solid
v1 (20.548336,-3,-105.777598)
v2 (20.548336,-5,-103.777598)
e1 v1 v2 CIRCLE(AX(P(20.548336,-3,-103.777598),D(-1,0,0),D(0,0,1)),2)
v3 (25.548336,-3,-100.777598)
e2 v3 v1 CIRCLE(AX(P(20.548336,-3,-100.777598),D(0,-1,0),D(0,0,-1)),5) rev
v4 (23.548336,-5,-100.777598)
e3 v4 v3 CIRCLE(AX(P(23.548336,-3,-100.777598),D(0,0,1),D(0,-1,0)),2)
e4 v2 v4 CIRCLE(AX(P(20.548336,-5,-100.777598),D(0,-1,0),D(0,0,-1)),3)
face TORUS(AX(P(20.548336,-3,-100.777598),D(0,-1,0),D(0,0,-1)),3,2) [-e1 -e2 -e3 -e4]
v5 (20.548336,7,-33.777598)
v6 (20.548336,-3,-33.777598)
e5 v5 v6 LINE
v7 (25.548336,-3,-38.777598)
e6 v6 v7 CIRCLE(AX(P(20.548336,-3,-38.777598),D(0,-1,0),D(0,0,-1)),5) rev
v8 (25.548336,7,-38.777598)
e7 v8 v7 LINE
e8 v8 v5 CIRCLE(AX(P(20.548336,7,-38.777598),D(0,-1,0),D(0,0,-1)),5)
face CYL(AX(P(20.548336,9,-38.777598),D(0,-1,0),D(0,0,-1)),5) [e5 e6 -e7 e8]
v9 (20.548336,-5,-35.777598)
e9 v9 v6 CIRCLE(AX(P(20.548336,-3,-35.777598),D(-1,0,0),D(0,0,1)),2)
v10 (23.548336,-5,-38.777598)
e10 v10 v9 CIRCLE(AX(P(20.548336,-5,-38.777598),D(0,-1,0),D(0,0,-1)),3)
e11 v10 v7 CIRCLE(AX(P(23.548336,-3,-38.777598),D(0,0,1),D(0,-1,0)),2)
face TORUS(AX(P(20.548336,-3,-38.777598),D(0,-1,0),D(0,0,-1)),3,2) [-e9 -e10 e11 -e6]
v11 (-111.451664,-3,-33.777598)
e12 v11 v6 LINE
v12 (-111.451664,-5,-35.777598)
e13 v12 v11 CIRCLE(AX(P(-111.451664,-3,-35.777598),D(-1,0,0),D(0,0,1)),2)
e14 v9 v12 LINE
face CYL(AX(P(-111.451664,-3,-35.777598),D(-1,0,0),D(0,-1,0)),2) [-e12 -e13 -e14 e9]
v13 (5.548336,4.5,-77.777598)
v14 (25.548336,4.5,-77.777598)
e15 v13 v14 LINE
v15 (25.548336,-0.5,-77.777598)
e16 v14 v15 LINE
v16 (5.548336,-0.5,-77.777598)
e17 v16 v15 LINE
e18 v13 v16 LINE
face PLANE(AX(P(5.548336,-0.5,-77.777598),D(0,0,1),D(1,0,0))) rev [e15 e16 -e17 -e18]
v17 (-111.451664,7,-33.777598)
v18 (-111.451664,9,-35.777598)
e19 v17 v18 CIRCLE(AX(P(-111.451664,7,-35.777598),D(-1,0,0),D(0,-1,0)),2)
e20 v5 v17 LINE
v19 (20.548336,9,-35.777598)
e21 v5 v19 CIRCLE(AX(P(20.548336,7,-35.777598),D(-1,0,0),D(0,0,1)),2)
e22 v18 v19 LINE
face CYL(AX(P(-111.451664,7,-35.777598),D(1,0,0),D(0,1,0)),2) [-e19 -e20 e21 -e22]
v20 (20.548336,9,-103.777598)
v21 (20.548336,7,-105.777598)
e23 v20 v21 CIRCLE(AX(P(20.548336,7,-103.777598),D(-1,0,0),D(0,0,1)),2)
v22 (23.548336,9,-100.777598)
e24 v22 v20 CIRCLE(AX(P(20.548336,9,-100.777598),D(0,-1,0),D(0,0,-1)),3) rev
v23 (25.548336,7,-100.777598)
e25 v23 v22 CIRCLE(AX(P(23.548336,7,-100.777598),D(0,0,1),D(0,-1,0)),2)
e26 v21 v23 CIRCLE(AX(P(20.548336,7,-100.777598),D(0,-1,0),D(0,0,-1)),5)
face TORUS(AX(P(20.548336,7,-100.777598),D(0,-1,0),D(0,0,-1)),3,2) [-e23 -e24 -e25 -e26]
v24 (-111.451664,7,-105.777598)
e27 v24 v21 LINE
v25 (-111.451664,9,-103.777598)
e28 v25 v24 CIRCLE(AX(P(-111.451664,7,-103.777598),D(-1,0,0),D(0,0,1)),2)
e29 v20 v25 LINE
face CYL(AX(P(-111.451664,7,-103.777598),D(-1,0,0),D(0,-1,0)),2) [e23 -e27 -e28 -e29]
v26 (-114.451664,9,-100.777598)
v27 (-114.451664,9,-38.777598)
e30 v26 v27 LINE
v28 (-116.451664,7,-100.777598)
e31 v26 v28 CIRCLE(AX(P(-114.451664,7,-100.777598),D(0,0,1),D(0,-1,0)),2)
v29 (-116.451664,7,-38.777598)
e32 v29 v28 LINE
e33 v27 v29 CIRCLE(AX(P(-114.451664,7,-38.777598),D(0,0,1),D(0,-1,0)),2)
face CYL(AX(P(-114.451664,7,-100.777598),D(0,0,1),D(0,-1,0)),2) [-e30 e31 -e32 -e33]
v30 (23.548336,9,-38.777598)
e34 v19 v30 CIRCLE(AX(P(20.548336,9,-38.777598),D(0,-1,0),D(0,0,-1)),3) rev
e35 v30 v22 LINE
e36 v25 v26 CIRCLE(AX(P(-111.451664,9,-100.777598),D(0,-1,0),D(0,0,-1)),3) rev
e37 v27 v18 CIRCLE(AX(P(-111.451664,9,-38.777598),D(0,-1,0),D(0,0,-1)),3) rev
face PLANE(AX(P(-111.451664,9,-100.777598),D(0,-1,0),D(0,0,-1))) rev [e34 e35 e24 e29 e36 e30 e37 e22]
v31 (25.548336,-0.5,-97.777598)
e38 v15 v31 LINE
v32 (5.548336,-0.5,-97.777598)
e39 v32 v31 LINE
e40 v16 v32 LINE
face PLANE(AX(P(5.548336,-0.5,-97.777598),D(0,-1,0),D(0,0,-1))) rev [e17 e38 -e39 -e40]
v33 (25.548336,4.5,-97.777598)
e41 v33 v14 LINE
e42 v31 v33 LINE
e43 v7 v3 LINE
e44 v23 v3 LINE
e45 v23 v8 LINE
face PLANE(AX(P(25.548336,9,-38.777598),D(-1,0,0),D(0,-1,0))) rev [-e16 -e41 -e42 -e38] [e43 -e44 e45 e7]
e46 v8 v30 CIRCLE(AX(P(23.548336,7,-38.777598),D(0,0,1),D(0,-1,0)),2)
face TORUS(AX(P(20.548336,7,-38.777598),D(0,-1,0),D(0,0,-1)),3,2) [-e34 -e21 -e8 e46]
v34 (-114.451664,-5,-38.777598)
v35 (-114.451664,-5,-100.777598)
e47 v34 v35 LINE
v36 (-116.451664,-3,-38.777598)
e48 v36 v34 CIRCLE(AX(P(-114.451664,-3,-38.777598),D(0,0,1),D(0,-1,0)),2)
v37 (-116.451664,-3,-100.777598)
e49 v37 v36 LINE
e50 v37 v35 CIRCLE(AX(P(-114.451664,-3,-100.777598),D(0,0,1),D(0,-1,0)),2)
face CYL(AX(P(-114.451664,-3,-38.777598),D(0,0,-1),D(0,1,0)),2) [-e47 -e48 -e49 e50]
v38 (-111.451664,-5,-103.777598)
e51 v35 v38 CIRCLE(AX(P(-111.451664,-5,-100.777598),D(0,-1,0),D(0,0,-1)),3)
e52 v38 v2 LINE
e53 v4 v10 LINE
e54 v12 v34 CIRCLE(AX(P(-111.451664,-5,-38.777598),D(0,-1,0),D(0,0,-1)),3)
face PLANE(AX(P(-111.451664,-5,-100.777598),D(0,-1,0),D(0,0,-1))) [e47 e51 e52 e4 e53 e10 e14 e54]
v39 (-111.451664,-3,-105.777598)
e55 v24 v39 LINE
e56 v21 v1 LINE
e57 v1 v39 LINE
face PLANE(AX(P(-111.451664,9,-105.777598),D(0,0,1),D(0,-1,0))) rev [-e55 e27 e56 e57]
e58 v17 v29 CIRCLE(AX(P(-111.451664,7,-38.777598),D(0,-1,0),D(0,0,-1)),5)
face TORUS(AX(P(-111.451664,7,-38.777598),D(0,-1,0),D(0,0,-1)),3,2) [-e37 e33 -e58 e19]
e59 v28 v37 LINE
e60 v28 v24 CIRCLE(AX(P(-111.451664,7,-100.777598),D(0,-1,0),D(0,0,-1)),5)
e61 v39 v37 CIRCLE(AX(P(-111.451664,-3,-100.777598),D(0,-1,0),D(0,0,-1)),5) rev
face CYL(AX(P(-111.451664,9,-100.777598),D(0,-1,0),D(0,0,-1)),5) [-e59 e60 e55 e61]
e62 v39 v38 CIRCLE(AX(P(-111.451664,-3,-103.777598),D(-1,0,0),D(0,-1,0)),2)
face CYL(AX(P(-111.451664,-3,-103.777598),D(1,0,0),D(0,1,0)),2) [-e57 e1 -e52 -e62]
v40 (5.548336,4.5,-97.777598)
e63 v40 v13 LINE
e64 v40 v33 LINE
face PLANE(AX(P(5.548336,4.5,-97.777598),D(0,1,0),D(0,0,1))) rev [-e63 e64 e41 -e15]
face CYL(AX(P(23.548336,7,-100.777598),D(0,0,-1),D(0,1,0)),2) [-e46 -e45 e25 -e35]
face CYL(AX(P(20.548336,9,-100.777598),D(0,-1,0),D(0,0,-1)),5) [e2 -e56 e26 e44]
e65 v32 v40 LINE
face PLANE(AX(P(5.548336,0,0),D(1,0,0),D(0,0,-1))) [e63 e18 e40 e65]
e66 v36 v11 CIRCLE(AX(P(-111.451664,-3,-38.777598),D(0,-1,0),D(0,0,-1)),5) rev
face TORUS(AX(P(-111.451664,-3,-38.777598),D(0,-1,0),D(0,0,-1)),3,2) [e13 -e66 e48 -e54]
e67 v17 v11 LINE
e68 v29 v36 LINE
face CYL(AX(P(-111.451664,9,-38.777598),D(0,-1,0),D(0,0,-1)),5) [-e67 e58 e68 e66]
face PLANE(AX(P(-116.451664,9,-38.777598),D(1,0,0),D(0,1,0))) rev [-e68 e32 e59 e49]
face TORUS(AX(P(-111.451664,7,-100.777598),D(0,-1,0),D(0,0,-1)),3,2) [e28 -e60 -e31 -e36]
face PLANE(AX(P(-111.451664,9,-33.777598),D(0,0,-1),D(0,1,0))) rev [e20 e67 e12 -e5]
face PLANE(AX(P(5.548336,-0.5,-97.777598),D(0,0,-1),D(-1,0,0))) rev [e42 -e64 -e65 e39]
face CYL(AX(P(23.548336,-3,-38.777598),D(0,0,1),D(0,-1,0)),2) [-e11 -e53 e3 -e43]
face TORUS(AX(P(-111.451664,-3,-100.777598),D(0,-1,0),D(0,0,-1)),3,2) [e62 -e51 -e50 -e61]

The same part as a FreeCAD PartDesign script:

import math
import FreeCAD as App
import Part
import Sketcher

V = App.Vector


def edges_at(feature, points):
    """Names of the edges that pass closest to the given points."""
    edges = feature.Shape.Edges
    near = lambda p: min(range(len(edges)), key=lambda i: edges[i].distToShape(Part.Vertex(*p))[0])
    return sorted({f"Edge{near(p) + 1}" for p in points})


def add_polygon(sketch, points):
    """Adds a closed chain of lines whose ends are joined by coincident constraints."""
    first, n = sketch.GeometryCount, len(points)
    for a, b in zip(points, points[1:] + points[:1]):
        sketch.addGeometry(Part.LineSegment(App.Vector(*a, 0), App.Vector(*b, 0)), False)
    for i in range(n):
        sketch.addConstraint(Sketcher.Constraint("Coincident", first + i, 2, first + (i + 1) % n, 1))

doc = App.newDocument("Part")
body = doc.addObject("PartDesign::Body", "Body")

sketch1 = body.newObject("Sketcher::SketchObject", "Sketch")
sketch1.AttachmentSupport = (doc.getObject("XZ_Plane"), [""])
sketch1.MapMode = "FlatFace"
sketch1.AttachmentOffset = App.Placement(V(0, 0, 5), App.Rotation())
sketch1.addGeometry([
    Part.LineSegment(V(-111, -34, 0), V(21, -34, 0)),
    Part.ArcOfCircle(Part.Circle(V(21, -39, 0), V(0, 0, 1), 5), math.radians(0), math.radians(90)),
    Part.LineSegment(V(26, -39, 0), V(26, -101, 0)),
    Part.ArcOfCircle(Part.Circle(V(21, -101, 0), V(0, 0, 1), 5), math.radians(-90), math.radians(0)),
    Part.LineSegment(V(21, -106, 0), V(-111, -106, 0)),
    Part.ArcOfCircle(Part.Circle(V(-111, -101, 0), V(0, 0, 1), 5), math.radians(180), math.radians(270)),
    Part.LineSegment(V(-116, -101, 0), V(-116, -39, 0)),
    Part.ArcOfCircle(Part.Circle(V(-111, -39, 0), V(0, 0, 1), 5), math.radians(90), math.radians(180)),
], False)
sketch1.addConstraint([
    Sketcher.Constraint("Tangent", 0, 2, 1, 2),
    Sketcher.Constraint("Tangent", 1, 1, 2, 1),
    Sketcher.Constraint("Tangent", 2, 2, 3, 2),
    Sketcher.Constraint("Tangent", 3, 1, 4, 1),
    Sketcher.Constraint("Tangent", 4, 2, 5, 2),
    Sketcher.Constraint("Tangent", 5, 1, 6, 1),
    Sketcher.Constraint("Tangent", 6, 2, 7, 2),
    Sketcher.Constraint("Tangent", 7, 1, 0, 1),
    Sketcher.Constraint("Horizontal", 0),
    Sketcher.Constraint("Vertical", 2),
    Sketcher.Constraint("Horizontal", 4),
    Sketcher.Constraint("Vertical", 6),
    Sketcher.Constraint("Equal", 1, 3),
    Sketcher.Constraint("Equal", 3, 5),
    Sketcher.Constraint("Equal", 5, 7),
    Sketcher.Constraint("Radius", 1, 5.0),
    Sketcher.Constraint("DistanceX", 0, 1, 0, 2, 132.0),
    Sketcher.Constraint("DistanceY", 2, 2, 2, 1, 62.0),
    Sketcher.Constraint("DistanceY", 1, 3, -1, 1, 38.777598),
    Sketcher.Constraint("DistanceX", -1, 1, 1, 3, 20.548336),
])
pad1 = body.newObject("PartDesign::Pad", "Pad")
pad1.Profile = sketch1
pad1.Length = 14
pad1.Reversed = True
doc.recompute()

fillet = body.newObject("PartDesign::Fillet", "Fillet")
fillet.Base = (pad1, edges_at(pad1, [
    (-114.987, 9, -35.242),
    (-116.452, -5, -69.778),
    (-114.987, -5, -104.313),
    (-45.452, 9, -33.778),
    (24.084, 9, -35.242),
    (25.548, 9, -69.778),
    (24.084, 9, -104.313),
    (-45.452, 9, -105.778),
    (-114.987, 9, -104.313),
    (-116.452, 9, -69.778),
    (-45.452, -5, -105.778),
    (24.084, -5, -104.313),
    (25.548, -5, -69.778),
    (24.084, -5, -35.242),
    (-45.452, -5, -33.778),
    (-114.987, -5, -35.242),
]))
fillet.Radius = 2

sketch2 = body.newObject("Sketcher::SketchObject", "Sketch001")
sketch2.AttachmentSupport = (doc.getObject("YZ_Plane"), [""])
sketch2.MapMode = "FlatFace"
sketch2.AttachmentOffset = App.Placement(V(0, 0, 25.548336), App.Rotation())
add_polygon(sketch2, [(4, -78), (0, -78), (0, -98), (4, -98)])
sketch2.addConstraint([
    Sketcher.Constraint("Horizontal", 0),
    Sketcher.Constraint("Vertical", 1),
    Sketcher.Constraint("Horizontal", 2),
    Sketcher.Constraint("Vertical", 3),
    Sketcher.Constraint("DistanceX", 0, 2, 0, 1, 5.0),
    Sketcher.Constraint("DistanceY", 1, 2, 1, 1, 20.0),
    Sketcher.Constraint("DistanceX", 0, 2, -1, 1, 0.5),
    Sketcher.Constraint("DistanceY", 0, 2, -1, 1, 77.777598),
])
pocket1 = body.newObject("PartDesign::Pocket", "Pocket")
pocket1.Profile = sketch2
pocket1.Length = 20

doc.recompute()
